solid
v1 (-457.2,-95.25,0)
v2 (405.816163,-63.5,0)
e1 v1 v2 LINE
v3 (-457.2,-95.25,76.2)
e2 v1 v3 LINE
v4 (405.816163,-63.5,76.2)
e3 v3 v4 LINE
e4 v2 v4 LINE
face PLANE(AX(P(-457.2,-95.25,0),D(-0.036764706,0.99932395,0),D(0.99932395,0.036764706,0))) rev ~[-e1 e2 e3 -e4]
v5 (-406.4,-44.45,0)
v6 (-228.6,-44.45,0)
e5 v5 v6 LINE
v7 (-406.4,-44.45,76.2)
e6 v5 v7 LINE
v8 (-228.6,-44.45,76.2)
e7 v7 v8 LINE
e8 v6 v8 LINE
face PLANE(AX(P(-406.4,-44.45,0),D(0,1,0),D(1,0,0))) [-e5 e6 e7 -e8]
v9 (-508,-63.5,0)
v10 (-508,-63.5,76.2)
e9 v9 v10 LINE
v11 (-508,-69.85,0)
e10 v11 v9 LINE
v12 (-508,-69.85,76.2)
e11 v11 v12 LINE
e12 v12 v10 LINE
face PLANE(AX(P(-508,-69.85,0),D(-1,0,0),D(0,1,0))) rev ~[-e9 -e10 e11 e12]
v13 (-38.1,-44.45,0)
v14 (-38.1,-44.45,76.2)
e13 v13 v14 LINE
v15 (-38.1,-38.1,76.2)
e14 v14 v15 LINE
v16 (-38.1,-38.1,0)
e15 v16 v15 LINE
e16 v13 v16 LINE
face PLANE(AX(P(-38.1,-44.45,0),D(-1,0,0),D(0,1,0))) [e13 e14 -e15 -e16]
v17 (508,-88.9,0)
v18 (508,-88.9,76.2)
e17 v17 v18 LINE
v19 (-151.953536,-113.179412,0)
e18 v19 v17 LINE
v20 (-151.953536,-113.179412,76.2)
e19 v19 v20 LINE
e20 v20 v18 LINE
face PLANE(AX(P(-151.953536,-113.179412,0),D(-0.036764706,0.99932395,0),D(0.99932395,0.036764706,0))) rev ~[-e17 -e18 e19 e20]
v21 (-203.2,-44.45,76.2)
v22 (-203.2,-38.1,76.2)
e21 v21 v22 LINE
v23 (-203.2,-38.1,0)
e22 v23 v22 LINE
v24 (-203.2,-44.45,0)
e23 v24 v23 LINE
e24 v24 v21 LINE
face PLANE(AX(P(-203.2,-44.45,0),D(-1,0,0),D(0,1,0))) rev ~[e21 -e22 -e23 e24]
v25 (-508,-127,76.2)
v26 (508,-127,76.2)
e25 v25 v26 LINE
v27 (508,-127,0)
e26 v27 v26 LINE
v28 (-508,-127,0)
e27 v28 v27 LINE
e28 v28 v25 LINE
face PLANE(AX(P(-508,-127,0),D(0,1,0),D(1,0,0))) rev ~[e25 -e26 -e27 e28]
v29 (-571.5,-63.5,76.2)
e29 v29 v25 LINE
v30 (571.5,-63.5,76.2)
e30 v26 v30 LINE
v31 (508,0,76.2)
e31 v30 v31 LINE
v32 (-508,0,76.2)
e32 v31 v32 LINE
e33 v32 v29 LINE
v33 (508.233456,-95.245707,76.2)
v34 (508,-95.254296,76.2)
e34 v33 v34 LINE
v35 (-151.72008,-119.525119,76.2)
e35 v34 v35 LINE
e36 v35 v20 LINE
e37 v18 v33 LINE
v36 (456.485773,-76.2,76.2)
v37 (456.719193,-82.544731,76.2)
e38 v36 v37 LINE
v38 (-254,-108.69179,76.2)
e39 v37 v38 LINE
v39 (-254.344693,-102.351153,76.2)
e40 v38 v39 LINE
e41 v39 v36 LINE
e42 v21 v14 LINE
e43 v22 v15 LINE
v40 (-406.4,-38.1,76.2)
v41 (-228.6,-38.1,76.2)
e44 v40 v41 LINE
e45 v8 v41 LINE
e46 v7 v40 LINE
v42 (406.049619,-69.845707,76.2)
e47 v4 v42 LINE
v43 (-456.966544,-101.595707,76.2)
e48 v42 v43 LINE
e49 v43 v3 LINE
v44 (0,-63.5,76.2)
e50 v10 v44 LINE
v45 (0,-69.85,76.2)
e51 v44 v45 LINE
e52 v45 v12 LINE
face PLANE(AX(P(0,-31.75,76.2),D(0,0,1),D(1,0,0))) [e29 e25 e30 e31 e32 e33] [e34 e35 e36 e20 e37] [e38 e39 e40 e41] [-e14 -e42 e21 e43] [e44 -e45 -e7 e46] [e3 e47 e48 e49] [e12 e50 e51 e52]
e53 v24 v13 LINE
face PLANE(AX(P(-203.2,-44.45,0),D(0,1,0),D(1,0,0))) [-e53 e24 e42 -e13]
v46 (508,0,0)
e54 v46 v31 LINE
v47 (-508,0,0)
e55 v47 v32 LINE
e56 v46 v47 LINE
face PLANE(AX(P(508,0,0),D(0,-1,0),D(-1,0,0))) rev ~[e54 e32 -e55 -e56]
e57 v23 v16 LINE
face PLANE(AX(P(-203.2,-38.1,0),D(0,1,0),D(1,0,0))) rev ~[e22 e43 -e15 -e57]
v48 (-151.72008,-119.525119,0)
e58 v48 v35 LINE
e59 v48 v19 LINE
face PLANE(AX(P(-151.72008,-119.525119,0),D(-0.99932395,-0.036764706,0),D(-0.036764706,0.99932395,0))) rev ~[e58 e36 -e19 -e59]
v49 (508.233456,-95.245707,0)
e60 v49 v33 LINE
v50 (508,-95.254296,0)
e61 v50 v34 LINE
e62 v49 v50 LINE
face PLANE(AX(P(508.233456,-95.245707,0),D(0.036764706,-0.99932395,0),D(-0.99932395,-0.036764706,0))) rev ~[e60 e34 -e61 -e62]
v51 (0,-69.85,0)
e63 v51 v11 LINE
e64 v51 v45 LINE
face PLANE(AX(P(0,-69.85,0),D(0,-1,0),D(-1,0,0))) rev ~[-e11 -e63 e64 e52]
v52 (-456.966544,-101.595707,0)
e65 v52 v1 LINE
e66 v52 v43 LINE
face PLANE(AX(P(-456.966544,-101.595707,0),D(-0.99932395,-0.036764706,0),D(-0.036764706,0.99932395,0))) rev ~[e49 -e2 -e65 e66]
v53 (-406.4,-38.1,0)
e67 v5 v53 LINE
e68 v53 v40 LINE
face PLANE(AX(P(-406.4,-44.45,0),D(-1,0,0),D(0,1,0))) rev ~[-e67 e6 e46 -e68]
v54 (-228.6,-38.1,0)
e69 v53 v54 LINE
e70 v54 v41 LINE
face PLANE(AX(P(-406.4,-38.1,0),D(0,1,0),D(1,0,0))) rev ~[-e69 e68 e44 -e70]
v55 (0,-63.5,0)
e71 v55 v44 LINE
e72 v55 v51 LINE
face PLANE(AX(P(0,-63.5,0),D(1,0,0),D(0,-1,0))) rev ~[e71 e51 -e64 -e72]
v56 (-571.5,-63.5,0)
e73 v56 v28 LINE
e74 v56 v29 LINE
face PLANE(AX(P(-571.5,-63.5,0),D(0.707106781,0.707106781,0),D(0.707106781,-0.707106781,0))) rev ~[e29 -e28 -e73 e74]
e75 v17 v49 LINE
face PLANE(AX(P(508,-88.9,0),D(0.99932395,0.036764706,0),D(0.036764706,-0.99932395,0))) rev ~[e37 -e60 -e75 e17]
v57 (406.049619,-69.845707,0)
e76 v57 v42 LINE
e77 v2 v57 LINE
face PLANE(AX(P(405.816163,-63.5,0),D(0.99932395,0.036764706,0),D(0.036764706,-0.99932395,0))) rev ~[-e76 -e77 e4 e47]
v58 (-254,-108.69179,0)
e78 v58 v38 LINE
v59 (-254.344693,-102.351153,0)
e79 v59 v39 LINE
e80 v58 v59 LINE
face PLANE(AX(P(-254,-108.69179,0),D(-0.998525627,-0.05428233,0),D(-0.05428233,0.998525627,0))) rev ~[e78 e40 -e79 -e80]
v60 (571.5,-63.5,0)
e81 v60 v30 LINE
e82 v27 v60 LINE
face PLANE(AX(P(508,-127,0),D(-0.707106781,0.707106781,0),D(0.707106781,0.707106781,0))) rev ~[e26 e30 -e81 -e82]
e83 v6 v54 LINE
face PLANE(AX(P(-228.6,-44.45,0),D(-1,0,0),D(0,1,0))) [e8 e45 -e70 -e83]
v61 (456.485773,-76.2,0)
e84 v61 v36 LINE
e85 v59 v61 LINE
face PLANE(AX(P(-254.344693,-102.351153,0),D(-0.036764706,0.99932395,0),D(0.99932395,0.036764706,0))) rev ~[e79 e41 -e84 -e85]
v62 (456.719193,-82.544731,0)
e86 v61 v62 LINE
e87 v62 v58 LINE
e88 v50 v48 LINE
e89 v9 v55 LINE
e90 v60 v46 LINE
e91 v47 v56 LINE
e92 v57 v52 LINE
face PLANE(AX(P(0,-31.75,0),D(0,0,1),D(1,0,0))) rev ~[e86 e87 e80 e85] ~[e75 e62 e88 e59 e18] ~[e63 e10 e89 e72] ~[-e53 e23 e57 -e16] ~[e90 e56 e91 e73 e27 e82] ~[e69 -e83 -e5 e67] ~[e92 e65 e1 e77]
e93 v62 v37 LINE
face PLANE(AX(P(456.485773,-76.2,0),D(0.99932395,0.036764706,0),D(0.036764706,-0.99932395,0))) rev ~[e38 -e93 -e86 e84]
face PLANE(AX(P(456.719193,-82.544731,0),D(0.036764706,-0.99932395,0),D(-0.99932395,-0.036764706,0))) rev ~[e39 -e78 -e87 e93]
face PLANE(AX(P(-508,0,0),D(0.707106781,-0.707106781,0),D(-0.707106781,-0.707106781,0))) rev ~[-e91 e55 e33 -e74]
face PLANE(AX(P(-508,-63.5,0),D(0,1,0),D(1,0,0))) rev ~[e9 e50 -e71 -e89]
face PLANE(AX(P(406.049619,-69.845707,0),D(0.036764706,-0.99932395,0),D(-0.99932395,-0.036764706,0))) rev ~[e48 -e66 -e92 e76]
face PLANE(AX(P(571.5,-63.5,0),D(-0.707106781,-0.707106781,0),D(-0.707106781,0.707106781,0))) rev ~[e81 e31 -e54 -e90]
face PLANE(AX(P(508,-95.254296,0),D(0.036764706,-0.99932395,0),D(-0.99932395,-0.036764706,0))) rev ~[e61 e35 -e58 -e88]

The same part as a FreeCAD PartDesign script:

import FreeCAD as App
import Part
import Sketcher
Q = App.Units.Quantity


def add_polygon(sketch, points):
    """Adds a closed chain of lines whose ends are joined by coincident constraints."""
    first, n = sketch.GeometryCount, len(points)
    for a, b in zip(points, points[1:] + points[:1]):
        sketch.addGeometry(Part.LineSegment(App.Vector(*a, 0), App.Vector(*b, 0)), False)
    for i in range(n):
        sketch.addConstraint(Sketcher.Constraint("Coincident", first + i, 2, first + (i + 1) % n, 1))

doc = App.newDocument("Part")
body = doc.addObject("PartDesign::Body", "Body")

sketch1 = body.newObject("Sketcher::SketchObject", "Sketch")
sketch1.AttachmentSupport = (doc.getObject("XY_Plane"), [""])
sketch1.MapMode = "FlatFace"
add_polygon(sketch1, [(508, 0), (-508, 0), (-571.5, -63.5), (-508, -127), (508, -127), (571.5, -63.5)])
add_polygon(sketch1, [(-456.966544, -101.595707), (-457.2, -95.25), (405.816163, -63.5), (406.049619, -69.845707)])
add_polygon(sketch1, [(508, -88.9), (508.233456, -95.245707), (508, -95.254296), (-151.72008, -119.525119), (-151.953536, -113.179412)])
add_polygon(sketch1, [(456.485773, -76.2), (456.719193, -82.544731), (-254, -108.69179), (-254.344693, -102.351153)])
add_polygon(sketch1, [(-508, -69.85), (-508, -63.5), (0, -63.5), (0, -69.85)])
add_polygon(sketch1, [(-228.6, -44.45), (-406.4, -44.45), (-406.4, -38.1), (-228.6, -38.1)])
add_polygon(sketch1, [(-38.1, -44.45), (-203.2, -44.45), (-203.2, -38.1), (-38.1, -38.1)])
sketch1.addConstraint([
    Sketcher.Constraint("Horizontal", 0),
    Sketcher.Constraint("Horizontal", 3),
    Sketcher.Constraint("Vertical", 19),
    Sketcher.Constraint("Horizontal", 20),
    Sketcher.Constraint("Vertical", 21),
    Sketcher.Constraint("Horizontal", 22),
    Sketcher.Constraint("Horizontal", 23),
    Sketcher.Constraint("Vertical", 24),
    Sketcher.Constraint("Horizontal", 25),
    Sketcher.Constraint("Vertical", 26),
    Sketcher.Constraint("Horizontal", 27),
    Sketcher.Constraint("Vertical", 28),
    Sketcher.Constraint("Horizontal", 29),
    Sketcher.Constraint("Vertical", 30),
    Sketcher.Constraint("Symmetric", 0, 2, 5, 2, -1, 1),
    Sketcher.Constraint("Symmetric", 1, 2, 4, 2, -2),
    Sketcher.Constraint("PointOnObject", 20, 2, -2),
    Sketcher.Constraint("Perpendicular", 1, 2),
    Sketcher.Constraint("Perpendicular", 2, 4),
    Sketcher.Constraint("Perpendicular", 4, 5),
    Sketcher.Constraint("Perpendicular", 6, 7),
    Sketcher.Constraint("Perpendicular", 7, 8),
    Sketcher.Constraint("Perpendicular", 8, 9),
    Sketcher.Constraint("Perpendicular", 9, 10),
    Sketcher.Constraint("Perpendicular", 10, 11),
    Sketcher.Constraint("Perpendicular", 10, 12),
    Sketcher.Constraint("Perpendicular", 12, 13),
    Sketcher.Constraint("Perpendicular", 13, 14),
    Sketcher.Constraint("Perpendicular", 14, 15),
    Sketcher.Constraint("Perpendicular", 15, 16),
    Sketcher.Constraint("Parallel", 16, 18),
    Sketcher.Constraint("Horizontal", 4, 2, 7, 2),
    Sketcher.Constraint("Horizontal", 7, 2, 19, 2),
    Sketcher.Constraint("Horizontal", 26, 2, 27, 2),
    Sketcher.Constraint("Horizontal", 25, 2, 28, 2),
    Sketcher.Constraint("Vertical", 0, 2, 2, 2),
    Sketcher.Constraint("Vertical", 5, 2, 11, 2),
    Sketcher.Constraint("Vertical", 11, 2, 14, 2),
    Sketcher.Constraint("Vertical", 2, 2, 19, 2),
    Sketcher.Constraint("Equal", 21, 24),
    Sketcher.Constraint("Equal", 8, 10),
    Sketcher.Constraint("Equal", 13, 17),
    Sketcher.Constraint("DistanceX", 0, 2, 0, 1, Q("40 in")),
    Sketcher.Constraint("DistanceX", 23, 2, 23, 1, Q("7 in")),
    Sketcher.Constraint("Distance", 7, Q("34 in")),
    Sketcher.Constraint("Distance", 14, Q("26 in")),
    Sketcher.Constraint("Distance", 16, Q("28 in")),
    Sketcher.Constraint("DistanceX", 27, 2, 27, 1, Q("6.5 in")),
    Sketcher.Constraint("DistanceY", 2, 2, -1, 1, Q("5 in")),
    Sketcher.Constraint("DistanceX", 6, 2, -1, 1, Q("18 in")),
    Sketcher.Constraint("DistanceX", 16, 2, -1, 1, Q("10 in")),
    Sketcher.Constraint("DistanceY", 18, 2, -1, 1, Q("3 in")),
    Sketcher.Constraint("DistanceX", 23, 2, -1, 1, Q("16 in")),
    Sketcher.Constraint("DistanceX", 27, 2, -1, 1, Q("8 in")),
    Sketcher.Constraint("DistanceY", 10, 2, 8, 2, Q("1 in")),
    Sketcher.Constraint("DistanceY", 6, 2, 22, 2, Q("1 in")),
    Sketcher.Constraint("DistanceY", 6, 2, 23, 2, Q("2 in")),
    Sketcher.Constraint("DistanceY", 19, 1, 19, 2, Q("0.25 in")),
    Sketcher.Constraint("Distance", 6, Q("0.25 in")),
    Sketcher.Constraint("Distance", 18, Q("711.311348 mm")),
])
pad1 = body.newObject("PartDesign::Pad", "Pad")
pad1.Profile = sketch1
pad1.Length = Q("3 in")

doc.recompute()
